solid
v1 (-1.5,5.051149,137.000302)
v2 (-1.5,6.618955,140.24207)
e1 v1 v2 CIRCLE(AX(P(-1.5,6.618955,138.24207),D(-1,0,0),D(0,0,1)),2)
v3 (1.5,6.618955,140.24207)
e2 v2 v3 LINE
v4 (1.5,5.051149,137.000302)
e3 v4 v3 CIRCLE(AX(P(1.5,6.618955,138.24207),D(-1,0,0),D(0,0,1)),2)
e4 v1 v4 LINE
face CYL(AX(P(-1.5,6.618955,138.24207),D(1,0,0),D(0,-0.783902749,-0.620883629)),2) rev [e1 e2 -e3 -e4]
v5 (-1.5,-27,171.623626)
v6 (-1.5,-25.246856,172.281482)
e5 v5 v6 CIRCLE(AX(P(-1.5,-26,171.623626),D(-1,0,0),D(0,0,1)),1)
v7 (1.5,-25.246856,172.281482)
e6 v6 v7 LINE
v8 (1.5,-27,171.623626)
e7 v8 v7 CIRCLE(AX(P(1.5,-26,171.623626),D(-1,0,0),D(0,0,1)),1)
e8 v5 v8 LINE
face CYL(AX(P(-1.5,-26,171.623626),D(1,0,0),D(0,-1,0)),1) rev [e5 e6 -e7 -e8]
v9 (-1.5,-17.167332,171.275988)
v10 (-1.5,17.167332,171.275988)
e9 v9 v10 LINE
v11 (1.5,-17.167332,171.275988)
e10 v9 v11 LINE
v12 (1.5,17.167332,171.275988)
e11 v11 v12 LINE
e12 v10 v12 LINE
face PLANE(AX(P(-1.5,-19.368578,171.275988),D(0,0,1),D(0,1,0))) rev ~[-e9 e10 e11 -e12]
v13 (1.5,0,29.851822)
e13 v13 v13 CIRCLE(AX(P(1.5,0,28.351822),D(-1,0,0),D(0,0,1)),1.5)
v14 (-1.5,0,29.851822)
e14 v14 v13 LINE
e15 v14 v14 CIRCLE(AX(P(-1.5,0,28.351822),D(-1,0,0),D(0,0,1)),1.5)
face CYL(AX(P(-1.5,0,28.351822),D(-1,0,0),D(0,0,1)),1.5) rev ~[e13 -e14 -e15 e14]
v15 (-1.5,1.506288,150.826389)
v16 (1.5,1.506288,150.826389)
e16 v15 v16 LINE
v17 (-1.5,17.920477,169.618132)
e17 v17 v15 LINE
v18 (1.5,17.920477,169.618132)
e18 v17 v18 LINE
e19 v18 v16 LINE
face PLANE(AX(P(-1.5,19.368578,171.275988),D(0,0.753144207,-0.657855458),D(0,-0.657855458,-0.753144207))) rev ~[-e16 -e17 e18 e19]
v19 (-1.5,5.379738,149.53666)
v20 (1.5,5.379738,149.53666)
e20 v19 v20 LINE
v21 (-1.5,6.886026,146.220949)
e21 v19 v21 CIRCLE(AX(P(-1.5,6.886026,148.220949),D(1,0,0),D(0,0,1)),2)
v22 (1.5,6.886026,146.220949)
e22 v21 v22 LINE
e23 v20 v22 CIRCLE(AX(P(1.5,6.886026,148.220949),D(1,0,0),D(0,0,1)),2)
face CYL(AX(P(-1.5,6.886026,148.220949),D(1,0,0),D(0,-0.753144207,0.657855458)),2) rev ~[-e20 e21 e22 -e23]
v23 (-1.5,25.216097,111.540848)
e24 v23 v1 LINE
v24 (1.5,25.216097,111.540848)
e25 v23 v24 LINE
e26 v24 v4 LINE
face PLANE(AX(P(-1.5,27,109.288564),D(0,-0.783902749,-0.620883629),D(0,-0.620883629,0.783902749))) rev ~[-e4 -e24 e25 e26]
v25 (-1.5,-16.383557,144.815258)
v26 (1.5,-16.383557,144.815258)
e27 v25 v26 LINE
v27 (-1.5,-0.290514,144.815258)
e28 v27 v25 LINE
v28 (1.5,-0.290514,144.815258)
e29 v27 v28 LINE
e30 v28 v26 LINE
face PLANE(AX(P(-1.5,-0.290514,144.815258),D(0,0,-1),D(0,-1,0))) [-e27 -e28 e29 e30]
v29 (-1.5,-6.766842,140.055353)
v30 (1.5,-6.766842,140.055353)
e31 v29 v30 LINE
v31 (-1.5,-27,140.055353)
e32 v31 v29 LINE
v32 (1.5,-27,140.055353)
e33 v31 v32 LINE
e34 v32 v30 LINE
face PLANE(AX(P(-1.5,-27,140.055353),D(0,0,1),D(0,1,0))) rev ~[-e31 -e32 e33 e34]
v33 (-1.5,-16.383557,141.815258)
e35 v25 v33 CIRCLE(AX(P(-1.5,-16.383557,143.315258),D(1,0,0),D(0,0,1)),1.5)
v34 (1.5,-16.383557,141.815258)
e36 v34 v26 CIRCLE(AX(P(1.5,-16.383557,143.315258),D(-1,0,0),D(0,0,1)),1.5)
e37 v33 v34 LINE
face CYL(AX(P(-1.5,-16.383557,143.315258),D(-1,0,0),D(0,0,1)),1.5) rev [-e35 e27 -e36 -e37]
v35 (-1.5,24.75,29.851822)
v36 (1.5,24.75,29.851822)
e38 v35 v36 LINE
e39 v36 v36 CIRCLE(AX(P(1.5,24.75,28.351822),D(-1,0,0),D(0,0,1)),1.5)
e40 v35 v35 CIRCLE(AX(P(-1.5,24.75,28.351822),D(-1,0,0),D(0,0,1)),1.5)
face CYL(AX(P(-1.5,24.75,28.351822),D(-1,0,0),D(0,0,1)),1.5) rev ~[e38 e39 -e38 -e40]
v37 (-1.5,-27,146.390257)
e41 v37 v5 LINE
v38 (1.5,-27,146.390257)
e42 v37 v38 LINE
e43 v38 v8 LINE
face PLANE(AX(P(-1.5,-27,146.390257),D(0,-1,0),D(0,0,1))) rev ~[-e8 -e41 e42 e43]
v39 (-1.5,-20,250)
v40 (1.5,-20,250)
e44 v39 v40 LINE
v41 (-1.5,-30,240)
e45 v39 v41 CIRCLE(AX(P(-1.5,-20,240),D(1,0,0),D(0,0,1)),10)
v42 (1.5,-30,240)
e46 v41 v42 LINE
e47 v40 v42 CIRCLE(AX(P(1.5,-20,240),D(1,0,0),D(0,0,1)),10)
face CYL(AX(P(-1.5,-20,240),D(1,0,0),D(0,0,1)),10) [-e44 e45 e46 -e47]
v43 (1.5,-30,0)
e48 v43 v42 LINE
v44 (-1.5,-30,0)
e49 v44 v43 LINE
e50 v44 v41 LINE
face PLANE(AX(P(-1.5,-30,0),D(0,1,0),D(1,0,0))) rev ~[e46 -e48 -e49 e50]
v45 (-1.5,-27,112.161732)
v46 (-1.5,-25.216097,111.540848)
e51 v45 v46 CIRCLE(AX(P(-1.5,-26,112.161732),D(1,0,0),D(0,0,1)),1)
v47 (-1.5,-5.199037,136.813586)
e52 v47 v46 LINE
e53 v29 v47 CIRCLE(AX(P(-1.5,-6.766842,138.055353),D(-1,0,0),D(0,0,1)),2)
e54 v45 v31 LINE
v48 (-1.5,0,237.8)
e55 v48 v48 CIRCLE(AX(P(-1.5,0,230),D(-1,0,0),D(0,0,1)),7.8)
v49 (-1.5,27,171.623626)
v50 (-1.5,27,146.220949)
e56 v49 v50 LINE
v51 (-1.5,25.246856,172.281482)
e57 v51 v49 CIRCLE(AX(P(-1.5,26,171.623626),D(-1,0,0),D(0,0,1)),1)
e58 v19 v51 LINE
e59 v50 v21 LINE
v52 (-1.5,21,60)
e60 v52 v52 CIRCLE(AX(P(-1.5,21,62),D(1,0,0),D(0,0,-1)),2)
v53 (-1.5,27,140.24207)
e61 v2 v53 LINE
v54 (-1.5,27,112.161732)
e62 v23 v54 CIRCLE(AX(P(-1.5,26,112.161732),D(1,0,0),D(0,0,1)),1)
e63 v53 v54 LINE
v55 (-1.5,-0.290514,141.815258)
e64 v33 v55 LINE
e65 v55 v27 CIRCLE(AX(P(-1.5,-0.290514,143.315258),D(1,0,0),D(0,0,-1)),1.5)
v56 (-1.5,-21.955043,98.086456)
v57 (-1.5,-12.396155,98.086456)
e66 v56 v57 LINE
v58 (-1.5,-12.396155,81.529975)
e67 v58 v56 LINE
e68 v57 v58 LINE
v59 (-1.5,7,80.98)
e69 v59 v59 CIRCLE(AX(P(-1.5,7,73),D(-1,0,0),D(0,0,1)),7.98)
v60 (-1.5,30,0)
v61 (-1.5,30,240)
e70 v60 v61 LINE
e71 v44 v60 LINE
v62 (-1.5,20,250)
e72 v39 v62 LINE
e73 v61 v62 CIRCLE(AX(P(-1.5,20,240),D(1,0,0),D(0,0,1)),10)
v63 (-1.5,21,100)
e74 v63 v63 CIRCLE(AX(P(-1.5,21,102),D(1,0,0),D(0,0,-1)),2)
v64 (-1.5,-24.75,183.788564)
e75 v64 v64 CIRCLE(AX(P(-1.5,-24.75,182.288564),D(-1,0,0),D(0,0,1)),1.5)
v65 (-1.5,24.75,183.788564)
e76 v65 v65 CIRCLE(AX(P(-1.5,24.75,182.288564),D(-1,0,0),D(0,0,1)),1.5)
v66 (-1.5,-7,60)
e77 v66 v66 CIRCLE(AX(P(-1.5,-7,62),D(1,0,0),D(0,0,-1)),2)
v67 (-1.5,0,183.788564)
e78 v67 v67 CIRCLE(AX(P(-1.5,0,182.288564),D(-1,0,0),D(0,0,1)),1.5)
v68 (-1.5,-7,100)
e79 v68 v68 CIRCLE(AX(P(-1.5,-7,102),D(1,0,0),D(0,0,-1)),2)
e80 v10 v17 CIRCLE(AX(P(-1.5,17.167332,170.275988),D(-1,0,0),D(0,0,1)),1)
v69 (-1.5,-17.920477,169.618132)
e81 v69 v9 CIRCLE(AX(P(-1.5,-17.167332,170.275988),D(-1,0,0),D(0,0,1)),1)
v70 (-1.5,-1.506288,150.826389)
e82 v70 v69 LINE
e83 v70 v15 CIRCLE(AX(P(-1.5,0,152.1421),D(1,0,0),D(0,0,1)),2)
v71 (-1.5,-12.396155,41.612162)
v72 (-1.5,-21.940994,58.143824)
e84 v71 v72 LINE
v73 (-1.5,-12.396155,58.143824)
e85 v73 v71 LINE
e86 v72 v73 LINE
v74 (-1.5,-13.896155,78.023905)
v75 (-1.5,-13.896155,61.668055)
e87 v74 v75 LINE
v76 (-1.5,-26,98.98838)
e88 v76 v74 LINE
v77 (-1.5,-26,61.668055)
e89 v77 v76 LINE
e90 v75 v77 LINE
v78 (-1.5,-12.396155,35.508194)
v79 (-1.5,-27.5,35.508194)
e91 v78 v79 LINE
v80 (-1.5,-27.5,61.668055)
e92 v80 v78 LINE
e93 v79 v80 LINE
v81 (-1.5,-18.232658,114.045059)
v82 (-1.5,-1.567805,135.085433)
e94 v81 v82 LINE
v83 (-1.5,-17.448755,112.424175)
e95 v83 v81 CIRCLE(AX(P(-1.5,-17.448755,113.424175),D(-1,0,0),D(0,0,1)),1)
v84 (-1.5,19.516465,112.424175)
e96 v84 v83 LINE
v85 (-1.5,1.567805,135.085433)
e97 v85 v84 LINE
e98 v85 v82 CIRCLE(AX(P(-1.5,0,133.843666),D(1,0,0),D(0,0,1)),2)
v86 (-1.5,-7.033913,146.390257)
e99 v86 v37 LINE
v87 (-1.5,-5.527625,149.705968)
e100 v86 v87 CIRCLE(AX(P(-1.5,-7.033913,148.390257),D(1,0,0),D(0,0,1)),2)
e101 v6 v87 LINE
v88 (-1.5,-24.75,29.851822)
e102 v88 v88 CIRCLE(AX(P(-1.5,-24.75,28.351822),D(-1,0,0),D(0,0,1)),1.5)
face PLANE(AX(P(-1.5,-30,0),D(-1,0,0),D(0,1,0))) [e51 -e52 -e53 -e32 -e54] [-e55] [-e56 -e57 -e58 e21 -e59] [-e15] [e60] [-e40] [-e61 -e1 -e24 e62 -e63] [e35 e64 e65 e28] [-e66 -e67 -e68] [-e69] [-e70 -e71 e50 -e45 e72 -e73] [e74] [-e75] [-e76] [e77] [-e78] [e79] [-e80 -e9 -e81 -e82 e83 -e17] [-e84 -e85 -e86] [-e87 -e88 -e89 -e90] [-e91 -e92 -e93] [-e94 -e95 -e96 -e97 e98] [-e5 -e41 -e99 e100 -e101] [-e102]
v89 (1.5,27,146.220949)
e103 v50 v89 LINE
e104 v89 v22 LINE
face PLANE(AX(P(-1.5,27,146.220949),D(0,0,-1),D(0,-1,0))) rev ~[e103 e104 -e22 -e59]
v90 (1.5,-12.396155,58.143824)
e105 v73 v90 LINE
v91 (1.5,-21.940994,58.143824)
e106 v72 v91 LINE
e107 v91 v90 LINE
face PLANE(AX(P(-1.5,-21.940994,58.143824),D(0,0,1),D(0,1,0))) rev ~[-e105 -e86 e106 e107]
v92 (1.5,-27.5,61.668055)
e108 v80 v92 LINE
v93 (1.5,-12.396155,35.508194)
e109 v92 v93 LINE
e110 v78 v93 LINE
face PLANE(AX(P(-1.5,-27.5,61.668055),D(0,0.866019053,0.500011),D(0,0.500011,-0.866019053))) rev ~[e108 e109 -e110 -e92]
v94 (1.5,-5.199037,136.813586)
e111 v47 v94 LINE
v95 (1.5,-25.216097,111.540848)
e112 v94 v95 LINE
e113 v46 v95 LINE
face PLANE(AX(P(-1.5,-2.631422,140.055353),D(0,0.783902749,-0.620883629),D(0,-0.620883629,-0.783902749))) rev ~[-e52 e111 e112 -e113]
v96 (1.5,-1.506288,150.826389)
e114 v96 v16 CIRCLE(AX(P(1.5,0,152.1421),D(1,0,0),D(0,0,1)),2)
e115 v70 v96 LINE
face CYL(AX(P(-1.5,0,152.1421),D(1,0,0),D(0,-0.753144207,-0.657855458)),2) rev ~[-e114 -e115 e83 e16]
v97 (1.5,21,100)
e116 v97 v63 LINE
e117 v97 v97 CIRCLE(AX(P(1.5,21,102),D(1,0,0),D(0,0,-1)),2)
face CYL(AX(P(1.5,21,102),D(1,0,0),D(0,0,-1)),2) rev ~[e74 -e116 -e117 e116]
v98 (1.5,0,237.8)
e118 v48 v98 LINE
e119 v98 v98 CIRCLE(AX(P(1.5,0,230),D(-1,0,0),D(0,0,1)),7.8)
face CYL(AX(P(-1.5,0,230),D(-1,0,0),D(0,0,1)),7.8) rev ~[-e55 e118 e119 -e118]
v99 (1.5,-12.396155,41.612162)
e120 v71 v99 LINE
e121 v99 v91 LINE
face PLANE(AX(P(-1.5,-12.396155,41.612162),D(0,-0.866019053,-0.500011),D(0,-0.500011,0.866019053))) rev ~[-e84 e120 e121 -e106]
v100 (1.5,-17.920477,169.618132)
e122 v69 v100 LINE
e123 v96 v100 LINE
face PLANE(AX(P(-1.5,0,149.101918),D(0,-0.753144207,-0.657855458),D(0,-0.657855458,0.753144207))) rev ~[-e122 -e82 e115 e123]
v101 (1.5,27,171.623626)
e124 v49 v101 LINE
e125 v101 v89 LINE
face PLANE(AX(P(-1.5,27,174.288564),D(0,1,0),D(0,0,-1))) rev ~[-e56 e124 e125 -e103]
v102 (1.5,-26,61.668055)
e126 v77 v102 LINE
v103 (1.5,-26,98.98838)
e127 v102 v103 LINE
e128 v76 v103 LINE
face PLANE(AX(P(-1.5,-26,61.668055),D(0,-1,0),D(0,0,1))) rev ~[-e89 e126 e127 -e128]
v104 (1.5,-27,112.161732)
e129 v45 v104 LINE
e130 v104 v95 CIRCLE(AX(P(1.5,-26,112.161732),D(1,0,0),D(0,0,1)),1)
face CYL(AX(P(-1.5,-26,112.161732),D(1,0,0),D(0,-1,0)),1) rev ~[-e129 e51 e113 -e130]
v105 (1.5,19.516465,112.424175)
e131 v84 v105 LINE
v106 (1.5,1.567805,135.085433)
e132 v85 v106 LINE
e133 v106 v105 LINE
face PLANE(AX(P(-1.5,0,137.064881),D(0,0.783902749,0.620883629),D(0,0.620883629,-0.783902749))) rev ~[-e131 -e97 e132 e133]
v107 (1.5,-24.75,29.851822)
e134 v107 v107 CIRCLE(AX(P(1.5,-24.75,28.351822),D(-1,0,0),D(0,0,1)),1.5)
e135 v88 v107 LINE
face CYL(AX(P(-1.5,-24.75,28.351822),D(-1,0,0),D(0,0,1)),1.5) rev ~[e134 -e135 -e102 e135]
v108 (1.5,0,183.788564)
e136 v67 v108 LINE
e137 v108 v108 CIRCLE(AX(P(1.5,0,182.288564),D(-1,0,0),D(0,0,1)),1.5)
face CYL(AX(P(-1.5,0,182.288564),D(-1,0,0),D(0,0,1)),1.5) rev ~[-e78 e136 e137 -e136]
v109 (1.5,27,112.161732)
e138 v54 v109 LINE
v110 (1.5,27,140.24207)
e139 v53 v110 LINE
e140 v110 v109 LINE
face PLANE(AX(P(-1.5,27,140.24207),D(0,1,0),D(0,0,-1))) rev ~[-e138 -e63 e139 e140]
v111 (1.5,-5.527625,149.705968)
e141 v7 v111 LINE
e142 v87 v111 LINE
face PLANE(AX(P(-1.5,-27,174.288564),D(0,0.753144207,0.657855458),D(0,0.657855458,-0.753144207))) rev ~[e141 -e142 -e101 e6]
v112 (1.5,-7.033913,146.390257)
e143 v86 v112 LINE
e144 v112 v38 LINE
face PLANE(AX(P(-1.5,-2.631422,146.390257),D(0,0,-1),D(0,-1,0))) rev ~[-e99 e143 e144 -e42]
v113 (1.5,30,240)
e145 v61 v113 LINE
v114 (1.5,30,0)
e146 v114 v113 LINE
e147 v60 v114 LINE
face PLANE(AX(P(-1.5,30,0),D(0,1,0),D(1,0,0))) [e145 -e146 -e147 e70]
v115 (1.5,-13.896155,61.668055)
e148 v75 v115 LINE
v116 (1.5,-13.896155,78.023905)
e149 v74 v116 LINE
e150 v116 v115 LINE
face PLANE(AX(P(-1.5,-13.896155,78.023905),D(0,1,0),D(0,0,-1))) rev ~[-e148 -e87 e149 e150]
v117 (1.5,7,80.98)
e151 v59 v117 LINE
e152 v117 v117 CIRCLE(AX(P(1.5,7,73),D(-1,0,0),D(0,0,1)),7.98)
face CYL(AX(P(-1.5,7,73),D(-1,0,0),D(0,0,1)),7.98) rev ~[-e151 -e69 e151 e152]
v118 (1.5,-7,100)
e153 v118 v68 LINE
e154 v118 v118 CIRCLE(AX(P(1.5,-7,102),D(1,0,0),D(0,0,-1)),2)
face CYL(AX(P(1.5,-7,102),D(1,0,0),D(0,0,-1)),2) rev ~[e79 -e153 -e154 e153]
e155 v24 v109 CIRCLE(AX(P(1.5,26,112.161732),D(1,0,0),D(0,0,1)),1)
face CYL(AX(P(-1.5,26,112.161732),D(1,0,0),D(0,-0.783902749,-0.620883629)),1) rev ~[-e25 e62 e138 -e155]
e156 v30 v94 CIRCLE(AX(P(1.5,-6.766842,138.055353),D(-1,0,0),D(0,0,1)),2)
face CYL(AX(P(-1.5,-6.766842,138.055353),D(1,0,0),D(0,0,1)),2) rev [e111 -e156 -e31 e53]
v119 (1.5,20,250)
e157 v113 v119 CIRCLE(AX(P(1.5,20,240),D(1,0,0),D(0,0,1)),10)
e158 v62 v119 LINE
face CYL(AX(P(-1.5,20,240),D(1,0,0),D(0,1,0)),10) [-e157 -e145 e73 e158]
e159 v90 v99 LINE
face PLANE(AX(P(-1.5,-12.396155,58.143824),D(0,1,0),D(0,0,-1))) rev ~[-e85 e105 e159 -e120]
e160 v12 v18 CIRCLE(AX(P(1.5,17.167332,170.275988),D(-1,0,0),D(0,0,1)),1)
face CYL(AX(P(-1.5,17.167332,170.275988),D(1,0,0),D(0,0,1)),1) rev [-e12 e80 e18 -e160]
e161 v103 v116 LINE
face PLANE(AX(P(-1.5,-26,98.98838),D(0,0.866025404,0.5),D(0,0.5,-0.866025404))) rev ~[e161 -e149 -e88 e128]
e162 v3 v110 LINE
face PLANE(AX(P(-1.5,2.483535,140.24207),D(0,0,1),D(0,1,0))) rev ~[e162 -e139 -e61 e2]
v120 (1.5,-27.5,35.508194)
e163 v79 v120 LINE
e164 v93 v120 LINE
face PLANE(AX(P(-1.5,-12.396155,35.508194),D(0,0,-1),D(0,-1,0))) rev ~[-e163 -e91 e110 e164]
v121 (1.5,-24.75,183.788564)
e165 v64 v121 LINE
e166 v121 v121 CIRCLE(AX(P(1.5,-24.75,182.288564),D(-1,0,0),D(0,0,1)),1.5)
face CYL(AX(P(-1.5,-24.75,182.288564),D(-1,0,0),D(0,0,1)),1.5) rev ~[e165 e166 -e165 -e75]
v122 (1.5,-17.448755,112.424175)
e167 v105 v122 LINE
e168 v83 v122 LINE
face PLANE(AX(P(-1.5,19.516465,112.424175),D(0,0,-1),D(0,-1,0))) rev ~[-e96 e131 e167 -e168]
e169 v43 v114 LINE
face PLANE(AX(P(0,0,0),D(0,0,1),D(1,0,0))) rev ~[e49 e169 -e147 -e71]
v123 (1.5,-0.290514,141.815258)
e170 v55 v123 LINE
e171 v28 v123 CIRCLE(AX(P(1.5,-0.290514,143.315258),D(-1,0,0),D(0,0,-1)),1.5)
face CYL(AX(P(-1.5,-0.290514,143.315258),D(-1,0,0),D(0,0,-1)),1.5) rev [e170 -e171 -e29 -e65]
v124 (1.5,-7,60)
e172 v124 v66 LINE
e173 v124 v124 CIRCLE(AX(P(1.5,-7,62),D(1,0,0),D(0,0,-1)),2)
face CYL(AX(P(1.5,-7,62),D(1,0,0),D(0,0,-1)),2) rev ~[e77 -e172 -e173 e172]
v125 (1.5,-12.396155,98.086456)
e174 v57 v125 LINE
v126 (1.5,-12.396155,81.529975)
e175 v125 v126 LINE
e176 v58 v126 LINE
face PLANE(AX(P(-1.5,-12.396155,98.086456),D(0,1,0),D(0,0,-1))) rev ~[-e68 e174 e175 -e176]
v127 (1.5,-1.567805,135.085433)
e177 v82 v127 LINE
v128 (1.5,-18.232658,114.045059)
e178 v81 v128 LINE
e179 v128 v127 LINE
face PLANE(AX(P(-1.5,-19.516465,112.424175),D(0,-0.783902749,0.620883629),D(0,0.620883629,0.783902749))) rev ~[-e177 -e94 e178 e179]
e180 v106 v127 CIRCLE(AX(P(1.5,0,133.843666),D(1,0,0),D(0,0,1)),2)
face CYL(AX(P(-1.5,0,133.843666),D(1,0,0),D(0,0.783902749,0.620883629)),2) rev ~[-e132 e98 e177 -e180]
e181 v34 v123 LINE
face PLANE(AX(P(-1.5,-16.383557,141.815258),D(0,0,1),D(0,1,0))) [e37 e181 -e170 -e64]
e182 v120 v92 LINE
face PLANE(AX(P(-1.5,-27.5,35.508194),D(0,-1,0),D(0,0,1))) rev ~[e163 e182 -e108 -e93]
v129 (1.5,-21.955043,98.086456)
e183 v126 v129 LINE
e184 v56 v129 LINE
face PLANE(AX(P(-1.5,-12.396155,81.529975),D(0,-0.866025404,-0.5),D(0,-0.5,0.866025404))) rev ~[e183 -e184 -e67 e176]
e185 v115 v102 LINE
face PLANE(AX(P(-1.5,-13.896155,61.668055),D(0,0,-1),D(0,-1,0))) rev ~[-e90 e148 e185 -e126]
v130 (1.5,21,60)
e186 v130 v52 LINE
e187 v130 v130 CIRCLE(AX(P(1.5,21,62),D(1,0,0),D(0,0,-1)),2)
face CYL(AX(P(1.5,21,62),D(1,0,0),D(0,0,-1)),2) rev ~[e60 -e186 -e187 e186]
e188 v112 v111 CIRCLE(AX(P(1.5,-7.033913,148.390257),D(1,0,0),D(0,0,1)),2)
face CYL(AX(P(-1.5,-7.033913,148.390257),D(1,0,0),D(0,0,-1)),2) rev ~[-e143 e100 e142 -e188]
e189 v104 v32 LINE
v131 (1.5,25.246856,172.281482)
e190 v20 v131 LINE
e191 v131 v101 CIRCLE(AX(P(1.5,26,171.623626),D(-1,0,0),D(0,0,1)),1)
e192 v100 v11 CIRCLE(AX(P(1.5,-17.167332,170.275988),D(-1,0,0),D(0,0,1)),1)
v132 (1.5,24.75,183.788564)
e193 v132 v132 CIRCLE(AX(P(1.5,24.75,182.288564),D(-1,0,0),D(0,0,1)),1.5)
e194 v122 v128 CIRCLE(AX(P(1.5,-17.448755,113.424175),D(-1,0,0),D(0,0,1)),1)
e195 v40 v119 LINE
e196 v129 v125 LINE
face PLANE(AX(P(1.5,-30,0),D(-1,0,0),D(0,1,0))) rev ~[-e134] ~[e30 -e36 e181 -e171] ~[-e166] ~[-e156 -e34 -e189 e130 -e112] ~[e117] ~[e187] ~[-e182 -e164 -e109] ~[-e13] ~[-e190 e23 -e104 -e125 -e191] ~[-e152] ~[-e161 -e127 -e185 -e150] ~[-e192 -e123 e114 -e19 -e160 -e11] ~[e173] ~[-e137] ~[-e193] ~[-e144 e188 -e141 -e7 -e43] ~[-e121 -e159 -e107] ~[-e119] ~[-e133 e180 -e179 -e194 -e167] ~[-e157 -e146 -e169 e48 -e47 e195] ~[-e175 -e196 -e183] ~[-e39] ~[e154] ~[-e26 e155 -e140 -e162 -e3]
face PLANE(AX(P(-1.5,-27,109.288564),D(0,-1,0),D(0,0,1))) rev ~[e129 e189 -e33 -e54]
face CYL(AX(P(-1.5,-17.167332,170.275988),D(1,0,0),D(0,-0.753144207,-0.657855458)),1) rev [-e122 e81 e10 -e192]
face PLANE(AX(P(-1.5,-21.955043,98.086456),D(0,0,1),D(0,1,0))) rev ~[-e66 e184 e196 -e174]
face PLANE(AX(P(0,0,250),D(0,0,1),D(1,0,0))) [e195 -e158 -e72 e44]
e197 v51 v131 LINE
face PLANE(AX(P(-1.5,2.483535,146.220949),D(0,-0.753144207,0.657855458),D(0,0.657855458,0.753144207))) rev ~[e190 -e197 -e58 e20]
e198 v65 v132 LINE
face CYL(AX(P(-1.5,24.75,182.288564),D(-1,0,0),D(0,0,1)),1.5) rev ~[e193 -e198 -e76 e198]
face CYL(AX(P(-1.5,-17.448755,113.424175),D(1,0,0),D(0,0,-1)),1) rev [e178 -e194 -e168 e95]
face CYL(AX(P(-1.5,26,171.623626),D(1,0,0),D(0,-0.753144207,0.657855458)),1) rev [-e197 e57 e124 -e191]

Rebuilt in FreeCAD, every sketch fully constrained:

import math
import FreeCAD as App
import Part
import Sketcher
Q = App.Units.Quantity


def edges_at(feature, points):
    """Names of the edges that pass closest to the given points."""
    edges = feature.Shape.Edges
    near = lambda p: min(range(len(edges)), key=lambda i: edges[i].distToShape(Part.Vertex(*p))[0])
    return sorted({f"Edge{near(p) + 1}" for p in points})

doc = App.newDocument("Part")
params = doc.addObject("Spreadsheet::Sheet", "Params")
for row, (alias, value) in enumerate([
    ("sketch1_width", "3 mm"),
    ("sketch1_height", "60 mm"),
    ("pad1_length", "250 mm"),
    ("fillet_radius", "10 mm"),
    ("fillet2_radius", "10 mm"),
    ("sketch2_diameter", "8.5 mm"),
    ("sketch3_diameter", "15.6 mm"),
    ("sketch4_diameter", "15.96 mm"),
    ("sketch5_diameter", "4 mm"),
    ("pocket5_length", "10 mm"),
    ("fillet3_radius", "1 mm"),
    ("fillet4_radius", "2 mm"),
    ("pocket6_length", "10 mm"),
    ("sketch8_radius", "1.5 mm"),
    ("sketch9_diameter", "3 mm"),
], start=1):
    params.set(f"A{row}", alias)
    params.set(f"B{row}", "=" + value)
    params.setAlias(f"B{row}", alias)

body = doc.addObject("PartDesign::Body", "Body")

# Sketch on XY plane
sketch1 = body.newObject("Sketcher::SketchObject", "Sketch")
sketch1.AttachmentSupport = (doc.getObject("XY_Plane"), [""])
sketch1.MapMode = "FlatFace"
sketch1.addGeometry(Part.LineSegment(App.Vector(-1.5, 30, 0), App.Vector(-1.5, -30, 0)), False)
sketch1.addGeometry(Part.LineSegment(App.Vector(-1.5, -30, 0), App.Vector(1.5, -30, 0)), False)
sketch1.addGeometry(Part.LineSegment(App.Vector(1.5, -30, 0), App.Vector(1.5, 30, 0)), False)
sketch1.addGeometry(Part.LineSegment(App.Vector(1.5, 30, 0), App.Vector(-1.5, 30, 0)), False)
sketch1.addConstraint(Sketcher.Constraint("Coincident", 0, 2, 1, 1))
sketch1.addConstraint(Sketcher.Constraint("Coincident", 1, 2, 2, 1))
sketch1.addConstraint(Sketcher.Constraint("Coincident", 2, 2, 3, 1))
sketch1.addConstraint(Sketcher.Constraint("Coincident", 3, 2, 0, 1))
sketch1.addConstraint(Sketcher.Constraint("Vertical", 0))
sketch1.addConstraint(Sketcher.Constraint("Horizontal", 1))
sketch1.addConstraint(Sketcher.Constraint("Vertical", 2))
sketch1.addConstraint(Sketcher.Constraint("Horizontal", 3))
sketch1.addConstraint(Sketcher.Constraint("Symmetric", 0, 2, 2, 2, -1, 1))
sketch1.addConstraint(Sketcher.Constraint("DistanceX", 1, 1, 1, 2, Q("3 mm")))
sketch1.addConstraint(Sketcher.Constraint("DistanceY", 0, 2, 0, 1, Q("60 mm")))
sketch1.setExpression("Constraints[9]", "Params.sketch1_width")
sketch1.setExpression("Constraints[10]", "Params.sketch1_height")
pad1 = body.newObject("PartDesign::Pad", "Pad")
pad1.Profile = sketch1
pad1.setExpression("Length", "Params.pad1_length")
doc.recompute()

fillet = body.newObject("PartDesign::Fillet", "Fillet")
fillet.Base = (pad1, edges_at(pad1, [(0, 30, 250)]))
fillet.setExpression("Radius", "Params.fillet_radius")
doc.recompute()

fillet2 = body.newObject("PartDesign::Fillet", "Fillet001")
fillet2.Base = (fillet, edges_at(fillet, [(0, -30, 250)]))
fillet2.setExpression("Radius", "Params.fillet2_radius")

# Sketch on YZ plane
sketch2 = body.newObject("Sketcher::SketchObject", "Sketch001")
sketch2.AttachmentSupport = (doc.getObject("YZ_Plane"), [""])
sketch2.MapMode = "FlatFace"
sketch2.AttachmentOffset = App.Placement(App.Vector(0, 0, -1.5), App.Rotation())
sketch2.addGeometry(Part.Circle(App.Vector(0, 230, 0), App.Vector(0, 0, 1), 4.25), False)
sketch2.addConstraint(Sketcher.Constraint("PointOnObject", 0, 3, -2))
sketch2.addConstraint(Sketcher.Constraint("Diameter", 0, Q("8.5 mm")))
sketch2.addConstraint(Sketcher.Constraint("DistanceY", -1, 1, 0, 3, Q("230 mm")))
sketch2.setExpression("Constraints[1]", "Params.sketch2_diameter")
pocket1 = body.newObject("PartDesign::Pocket", "Pocket")
pocket1.Profile = sketch2
pocket1.Type = "ThroughAll"
pocket1.Reversed = True

# Sketch on YZ plane
sketch3 = body.newObject("Sketcher::SketchObject", "Sketch002")
sketch3.AttachmentSupport = (doc.getObject("YZ_Plane"), [""])
sketch3.MapMode = "FlatFace"
sketch3.AttachmentOffset = App.Placement(App.Vector(0, 0, -1.5), App.Rotation())
sketch3.addGeometry(Part.Circle(App.Vector(0, 230, 0), App.Vector(0, 0, 1), 7.8), False)
sketch3.addConstraint(Sketcher.Constraint("PointOnObject", 0, 3, -2))
sketch3.addConstraint(Sketcher.Constraint("Diameter", 0, Q("15.6 mm")))
sketch3.addConstraint(Sketcher.Constraint("DistanceY", -1, 1, 0, 3, Q("230 mm")))
sketch3.setExpression("Constraints[1]", "Params.sketch3_diameter")
pocket2 = body.newObject("PartDesign::Pocket", "Pocket001")
pocket2.Profile = sketch3
pocket2.Type = "ThroughAll"
pocket2.Reversed = True

# Sketch on YZ plane
sketch4 = body.newObject("Sketcher::SketchObject", "Sketch003")
sketch4.AttachmentSupport = (doc.getObject("YZ_Plane"), [""])
sketch4.MapMode = "FlatFace"
sketch4.AttachmentOffset = App.Placement(App.Vector(0, 0, -1.5), App.Rotation())
sketch4.addGeometry(Part.Circle(App.Vector(7, 73, 0), App.Vector(0, 0, 1), 7.98), False)
sketch4.addConstraint(Sketcher.Constraint("Diameter", 0, Q("15.96 mm")))
sketch4.addConstraint(Sketcher.Constraint("DistanceX", -1, 1, 0, 3, Q("7 mm")))
sketch4.addConstraint(Sketcher.Constraint("DistanceY", -1, 1, 0, 3, Q("73 mm")))
sketch4.setExpression("Constraints[0]", "Params.sketch4_diameter")
pocket3 = body.newObject("PartDesign::Pocket", "Pocket002")
pocket3.Profile = sketch4
pocket3.Type = "ThroughAll"
pocket3.Reversed = True

# Sketch on YZ plane
sketch5 = body.newObject("Sketcher::SketchObject", "Sketch004")
sketch5.AttachmentSupport = (doc.getObject("YZ_Plane"), [""])
sketch5.MapMode = "FlatFace"
sketch5.AttachmentOffset = App.Placement(App.Vector(0, 0, 1.5), App.Rotation())
sketch5.addGeometry(Part.Circle(App.Vector(-7, 102, 0), App.Vector(0, 0, 1), 2), False)
sketch5.addGeometry(Part.Circle(App.Vector(21, 102, 0), App.Vector(0, 0, 1), 2), False)
sketch5.addGeometry(Part.Circle(App.Vector(21, 62, 0), App.Vector(0, 0, 1), 2), False)
sketch5.addGeometry(Part.Circle(App.Vector(-7, 62, 0), App.Vector(0, 0, 1), 2), False)
sketch5.addConstraint(Sketcher.Constraint("Equal", 0, 1))
sketch5.addConstraint(Sketcher.Constraint("Equal", 1, 2))
sketch5.addConstraint(Sketcher.Constraint("Equal", 2, 3))
sketch5.addConstraint(Sketcher.Constraint("Horizontal", 0, 3, 1, 3))
sketch5.addConstraint(Sketcher.Constraint("Horizontal", 2, 3, 3, 3))
sketch5.addConstraint(Sketcher.Constraint("Vertical", 1, 3, 2, 3))
sketch5.addConstraint(Sketcher.Constraint("Vertical", 0, 3, 3, 3))
sketch5.addConstraint(Sketcher.Constraint("Diameter", 0, Q("4 mm")))
sketch5.addConstraint(Sketcher.Constraint("DistanceX", 0, 3, -1, 1, Q("7 mm")))
sketch5.addConstraint(Sketcher.Constraint("DistanceY", -1, 1, 0, 3, Q("102 mm")))
sketch5.addConstraint(Sketcher.Constraint("DistanceX", -1, 1, 1, 3, Q("21 mm")))
sketch5.addConstraint(Sketcher.Constraint("DistanceY", -1, 1, 2, 3, Q("62 mm")))
sketch5.setExpression("Constraints[7]", "Params.sketch5_diameter")
pocket4 = body.newObject("PartDesign::Pocket", "Pocket003")
pocket4.Profile = sketch5
pocket4.Type = "ThroughAll"

# Sketch on YZ plane
sketch6 = body.newObject("Sketcher::SketchObject", "Sketch005")
sketch6.AttachmentSupport = (doc.getObject("YZ_Plane"), [""])
sketch6.MapMode = "FlatFace"
sketch6.AttachmentOffset = App.Placement(App.Vector(0, 0, -1.5), App.Rotation())
sketch6.addGeometry(Part.LineSegment(App.Vector(0, 149.101918, 0), App.Vector(-19.368578, 171.275988, 0)), False)
sketch6.addGeometry(Part.LineSegment(App.Vector(-19.368578, 171.275988, 0), App.Vector(19.368578, 171.275988, 0)), False)
sketch6.addGeometry(Part.LineSegment(App.Vector(19.368578, 171.275988, 0), App.Vector(0, 149.101918, 0)), False)
sketch6.addGeometry(Part.LineSegment(App.Vector(-27, 146.390257, 0), App.Vector(-27, 174.288564, 0)), False)
sketch6.addGeometry(Part.LineSegment(App.Vector(-27, 174.288564, 0), App.Vector(-2.631422, 146.390257, 0)), False)
sketch6.addGeometry(Part.LineSegment(App.Vector(-2.631422, 146.390257, 0), App.Vector(-27, 146.390257, 0)), False)
sketch6.addGeometry(Part.LineSegment(App.Vector(-27, 109.288564, 0), App.Vector(-27, 140.055353, 0)), False)
sketch6.addGeometry(Part.LineSegment(App.Vector(-27, 140.055353, 0), App.Vector(-2.631422, 140.055353, 0)), False)
sketch6.addGeometry(Part.LineSegment(App.Vector(-2.631422, 140.055353, 0), App.Vector(-27, 109.288564, 0)), False)
sketch6.addGeometry(Part.LineSegment(App.Vector(19.516465, 112.424175, 0), App.Vector(-19.516465, 112.424175, 0)), False)
sketch6.addGeometry(Part.LineSegment(App.Vector(-19.516465, 112.424175, 0), App.Vector(0, 137.064881, 0)), False)
sketch6.addGeometry(Part.LineSegment(App.Vector(0, 137.064881, 0), App.Vector(19.516465, 112.424175, 0)), False)
sketch6.addGeometry(Part.LineSegment(App.Vector(27, 109.288564, 0), App.Vector(2.483535, 140.24207, 0)), False)
sketch6.addGeometry(Part.LineSegment(App.Vector(2.483535, 140.24207, 0), App.Vector(27, 140.24207, 0)), False)
sketch6.addGeometry(Part.LineSegment(App.Vector(27, 140.24207, 0), App.Vector(27, 109.288564, 0)), False)
sketch6.addGeometry(Part.LineSegment(App.Vector(2.483535, 146.220949, 0), App.Vector(27, 174.288564, 0)), False)
sketch6.addGeometry(Part.LineSegment(App.Vector(27, 174.288564, 0), App.Vector(27, 146.220949, 0)), False)
sketch6.addGeometry(Part.LineSegment(App.Vector(27, 146.220949, 0), App.Vector(2.483535, 146.220949, 0)), False)
sketch6.addConstraint(Sketcher.Constraint("Coincident", 0, 2, 1, 1))
sketch6.addConstraint(Sketcher.Constraint("Coincident", 1, 2, 2, 1))
sketch6.addConstraint(Sketcher.Constraint("Coincident", 2, 2, 0, 1))
sketch6.addConstraint(Sketcher.Constraint("Coincident", 3, 2, 4, 1))
sketch6.addConstraint(Sketcher.Constraint("Coincident", 4, 2, 5, 1))
sketch6.addConstraint(Sketcher.Constraint("Coincident", 5, 2, 3, 1))
sketch6.addConstraint(Sketcher.Constraint("Coincident", 6, 2, 7, 1))
sketch6.addConstraint(Sketcher.Constraint("Coincident", 7, 2, 8, 1))
sketch6.addConstraint(Sketcher.Constraint("Coincident", 8, 2, 6, 1))
sketch6.addConstraint(Sketcher.Constraint("Coincident", 9, 2, 10, 1))
sketch6.addConstraint(Sketcher.Constraint("Coincident", 10, 2, 11, 1))
sketch6.addConstraint(Sketcher.Constraint("Coincident", 11, 2, 9, 1))
sketch6.addConstraint(Sketcher.Constraint("Coincident", 12, 2, 13, 1))
sketch6.addConstraint(Sketcher.Constraint("Coincident", 13, 2, 14, 1))
sketch6.addConstraint(Sketcher.Constraint("Coincident", 14, 2, 12, 1))
sketch6.addConstraint(Sketcher.Constraint("Coincident", 15, 2, 16, 1))
sketch6.addConstraint(Sketcher.Constraint("Coincident", 16, 2, 17, 1))
sketch6.addConstraint(Sketcher.Constraint("Coincident", 17, 2, 15, 1))
sketch6.addConstraint(Sketcher.Constraint("Horizontal", 1))
sketch6.addConstraint(Sketcher.Constraint("Vertical", 3))
sketch6.addConstraint(Sketcher.Constraint("Horizontal", 5))
sketch6.addConstraint(Sketcher.Constraint("Vertical", 6))
sketch6.addConstraint(Sketcher.Constraint("Horizontal", 7))
sketch6.addConstraint(Sketcher.Constraint("Horizontal", 9))
sketch6.addConstraint(Sketcher.Constraint("Horizontal", 13))
sketch6.addConstraint(Sketcher.Constraint("Vertical", 14))
sketch6.addConstraint(Sketcher.Constraint("Vertical", 16))
sketch6.addConstraint(Sketcher.Constraint("Horizontal", 17))
sketch6.addConstraint(Sketcher.Constraint("Symmetric", 8, 2, 14, 2, -2))
sketch6.addConstraint(Sketcher.Constraint("Symmetric", 3, 2, 15, 2, -2))
sketch6.addConstraint(Sketcher.Constraint("PointOnObject", 2, 2, -2))
sketch6.addConstraint(Sketcher.Constraint("PointOnObject", 10, 2, -2))
sketch6.addConstraint(Sketcher.Constraint("Parallel", 0, 4))
sketch6.addConstraint(Sketcher.Constraint("Parallel", 8, 10))
sketch6.addConstraint(Sketcher.Constraint("Parallel", 11, 12))
sketch6.addConstraint(Sketcher.Constraint("Parallel", 2, 15))
sketch6.addConstraint(Sketcher.Constraint("Vertical", 5, 2, 6, 2))
sketch6.addConstraint(Sketcher.Constraint("Vertical", 4, 2, 7, 2))
sketch6.addConstraint(Sketcher.Constraint("Vertical", 12, 2, 17, 2))
sketch6.addConstraint(Sketcher.Constraint("Equal", 0, 2))
sketch6.addConstraint(Sketcher.Constraint("Equal", 10, 11))
sketch6.addConstraint(Sketcher.Constraint("DistanceX", 3, 2, -1, 1, Q("27 mm")))
sketch6.addConstraint(Sketcher.Constraint("DistanceX", 4, 2, 1, 2, Q("22 mm")))
sketch6.addConstraint(Sketcher.Constraint("DistanceX", 5, 2, 5, 1, Q("24.368578 mm")))
sketch6.addConstraint(Sketcher.Constraint("DistanceX", 9, 2, 9, 1, Q("39.032931 mm")))
sketch6.addConstraint(Sketcher.Constraint("DistanceY", 6, 1, 6, 2, Q("30.766789 mm")))
sketch6.addConstraint(Sketcher.Constraint("Distance", 4, Q("37.04245 mm")))
sketch6.addConstraint(Sketcher.Constraint("Distance", 12, Q("39.48641 mm")))
sketch6.addConstraint(Sketcher.Constraint("DistanceY", -1, 1, 2, 2, Q("149.101918 mm")))
sketch6.addConstraint(Sketcher.Constraint("DistanceY", -1, 1, 10, 2, Q("137.064881 mm")))
sketch6.addConstraint(Sketcher.Constraint("DistanceY", -1, 1, 12, 2, Q("140.24207 mm")))
sketch6.addConstraint(Sketcher.Constraint("DistanceY", -1, 1, 16, 2, Q("146.220949 mm")))
pocket5 = body.newObject("PartDesign::Pocket", "Pocket004")
pocket5.Profile = sketch6
pocket5.setExpression("Length", "Params.pocket5_length")
pocket5.Reversed = True
doc.recompute()

fillet3 = body.newObject("PartDesign::Fillet", "Fillet002")
fillet3.Base = (pocket5, edges_at(pocket5, [
    (0, -27, 174.289),
    (0, 27, 174.289),
    (0, -19.369, 171.276),
    (0, 19.369, 171.276),
    (0, -19.516, 112.424),
    (0, 27, 109.289),
    (0, -27, 109.289),
]))
fillet3.setExpression("Radius", "Params.fillet3_radius")
doc.recompute()

fillet4 = body.newObject("PartDesign::Fillet", "Fillet003")
fillet4.Base = (fillet3, edges_at(fillet3, [
    (0, -2.631, 146.39),
    (0, 2.484, 146.221),
    (0, 0, 149.102),
    (0, 0, 137.065),
    (0, 2.484, 140.242),
    (0, -2.631, 140.055),
]))
fillet4.setExpression("Radius", "Params.fillet4_radius")

# Sketch on YZ plane
sketch7 = body.newObject("Sketcher::SketchObject", "Sketch006")
sketch7.AttachmentSupport = (doc.getObject("YZ_Plane"), [""])
sketch7.MapMode = "FlatFace"
sketch7.AttachmentOffset = App.Placement(App.Vector(0, 0, -1.5), App.Rotation())
sketch7.addGeometry(Part.LineSegment(App.Vector(-26, 61.668055, 0), App.Vector(-26, 98.98838, 0)), False)
sketch7.addGeometry(Part.LineSegment(App.Vector(-26, 98.98838, 0), App.Vector(-13.896155, 78.023905, 0)), False)
sketch7.addGeometry(Part.LineSegment(App.Vector(-13.896155, 78.023905, 0), App.Vector(-13.896155, 61.668055, 0)), False)
sketch7.addGeometry(Part.LineSegment(App.Vector(-13.896155, 61.668055, 0), App.Vector(-26, 61.668055, 0)), False)
sketch7.addGeometry(Part.LineSegment(App.Vector(-21.955043, 98.086456, 0), App.Vector(-12.396155, 98.086456, 0)), False)
sketch7.addGeometry(Part.LineSegment(App.Vector(-12.396155, 98.086456, 0), App.Vector(-12.396155, 81.529975, 0)), False)
sketch7.addGeometry(Part.LineSegment(App.Vector(-12.396155, 81.529975, 0), App.Vector(-21.955043, 98.086456, 0)), False)
sketch7.addGeometry(Part.LineSegment(App.Vector(-12.396155, 58.143824, 0), App.Vector(-12.396155, 41.612162, 0)), False)
sketch7.addGeometry(Part.LineSegment(App.Vector(-12.396155, 41.612162, 0), App.Vector(-21.940994, 58.143824, 0)), False)
sketch7.addGeometry(Part.LineSegment(App.Vector(-21.940994, 58.143824, 0), App.Vector(-12.396155, 58.143824, 0)), False)
sketch7.addGeometry(Part.LineSegment(App.Vector(-27.5, 35.508194, 0), App.Vector(-27.5, 61.668055, 0)), False)
sketch7.addGeometry(Part.LineSegment(App.Vector(-27.5, 61.668055, 0), App.Vector(-12.396155, 35.508194, 0)), False)
sketch7.addGeometry(Part.LineSegment(App.Vector(-12.396155, 35.508194, 0), App.Vector(-27.5, 35.508194, 0)), False)
sketch7.addConstraint(Sketcher.Constraint("Coincident", 0, 2, 1, 1))
sketch7.addConstraint(Sketcher.Constraint("Coincident", 1, 2, 2, 1))
sketch7.addConstraint(Sketcher.Constraint("Coincident", 2, 2, 3, 1))
sketch7.addConstraint(Sketcher.Constraint("Coincident", 3, 2, 0, 1))
sketch7.addConstraint(Sketcher.Constraint("Coincident", 4, 2, 5, 1))
sketch7.addConstraint(Sketcher.Constraint("Coincident", 5, 2, 6, 1))
sketch7.addConstraint(Sketcher.Constraint("Coincident", 6, 2, 4, 1))
sketch7.addConstraint(Sketcher.Constraint("Coincident", 7, 2, 8, 1))
sketch7.addConstraint(Sketcher.Constraint("Coincident", 8, 2, 9, 1))
sketch7.addConstraint(Sketcher.Constraint("Coincident", 9, 2, 7, 1))
sketch7.addConstraint(Sketcher.Constraint("Coincident", 10, 2, 11, 1))
sketch7.addConstraint(Sketcher.Constraint("Coincident", 11, 2, 12, 1))
sketch7.addConstraint(Sketcher.Constraint("Coincident", 12, 2, 10, 1))
sketch7.addConstraint(Sketcher.Constraint("Vertical", 0))
sketch7.addConstraint(Sketcher.Constraint("Vertical", 2))
sketch7.addConstraint(Sketcher.Constraint("Horizontal", 3))
sketch7.addConstraint(Sketcher.Constraint("Horizontal", 4))
sketch7.addConstraint(Sketcher.Constraint("Vertical", 5))
sketch7.addConstraint(Sketcher.Constraint("Vertical", 7))
sketch7.addConstraint(Sketcher.Constraint("Horizontal", 9))
sketch7.addConstraint(Sketcher.Constraint("Vertical", 10))
sketch7.addConstraint(Sketcher.Constraint("Horizontal", 12))
sketch7.addConstraint(Sketcher.Constraint("Parallel", 1, 6))
sketch7.addConstraint(Sketcher.Constraint("Parallel", 8, 11))
sketch7.addConstraint(Sketcher.Constraint("Horizontal", 3, 2, 10, 2))
sketch7.addConstraint(Sketcher.Constraint("Vertical", 5, 2, 7, 2))
sketch7.addConstraint(Sketcher.Constraint("Vertical", 9, 2, 11, 2))
sketch7.addConstraint(Sketcher.Constraint("Angle", 1, Q("-60 deg")))
sketch7.addConstraint(Sketcher.Constraint("DistanceX", 0, 2, -1, 1, Q("26 mm")))
sketch7.addConstraint(Sketcher.Constraint("DistanceX", 10, 2, -1, 1, Q("27.5 mm")))
sketch7.addConstraint(Sketcher.Constraint("DistanceX", 1, 2, 4, 2, Q("1.5 mm")))
sketch7.addConstraint(Sketcher.Constraint("DistanceX", 4, 1, 4, 2, Q("9.558889 mm")))
sketch7.addConstraint(Sketcher.Constraint("DistanceX", 9, 1, 9, 2, Q("9.54484 mm")))
sketch7.addConstraint(Sketcher.Constraint("DistanceY", 2, 2, 2, 1, Q("16.35585 mm")))
sketch7.addConstraint(Sketcher.Constraint("DistanceY", 10, 1, 10, 2, Q("26.15986 mm")))
sketch7.addConstraint(Sketcher.Constraint("DistanceY", 2, 2, 4, 2, Q("36.418402 mm")))
sketch7.addConstraint(Sketcher.Constraint("Distance", 1, Q("24.207691 mm")))
sketch7.addConstraint(Sketcher.Constraint("DistanceY", -1, 1, 0, 2, Q("98.98838 mm")))
sketch7.addConstraint(Sketcher.Constraint("DistanceY", -1, 1, 7, 2, Q("41.612162 mm")))
pocket6 = body.newObject("PartDesign::Pocket", "Pocket005")
pocket6.Profile = sketch7
pocket6.setExpression("Length", "Params.pocket6_length")
pocket6.Reversed = True

# Sketch on YZ plane
sketch8 = body.newObject("Sketcher::SketchObject", "Sketch007")
sketch8.AttachmentSupport = (doc.getObject("YZ_Plane"), [""])
sketch8.MapMode = "FlatFace"
sketch8.AttachmentOffset = App.Placement(App.Vector(0, 0, -1.5), App.Rotation())
sketch8.addGeometry(Part.LineSegment(App.Vector(-16.383557, 144.815258, 0), App.Vector(-0.290514, 144.815258, 0)), False)
sketch8.addGeometry(Part.ArcOfCircle(Part.Circle(App.Vector(-0.290514, 143.315258, 0), App.Vector(0, 0, 1), 1.5), math.radians(-90), math.radians(90)), False)
sketch8.addGeometry(Part.LineSegment(App.Vector(-0.290514, 141.815258, 0), App.Vector(-16.383557, 141.815258, 0)), False)
sketch8.addGeometry(Part.ArcOfCircle(Part.Circle(App.Vector(-16.383557, 143.315258, 0), App.Vector(0, 0, 1), 1.5), math.radians(90), math.radians(270)), False)
sketch8.addConstraint(Sketcher.Constraint("Tangent", 0, 2, 1, 2))
sketch8.addConstraint(Sketcher.Constraint("Tangent", 1, 1, 2, 1))
sketch8.addConstraint(Sketcher.Constraint("Tangent", 2, 2, 3, 2))
sketch8.addConstraint(Sketcher.Constraint("Tangent", 3, 1, 0, 1))
sketch8.addConstraint(Sketcher.Constraint("Horizontal", 0))
sketch8.addConstraint(Sketcher.Constraint("Horizontal", 2))
sketch8.addConstraint(Sketcher.Constraint("Radius", 1, Q("1.5 mm")))
sketch8.addConstraint(Sketcher.Constraint("DistanceX", 0, 1, 0, 2, Q("16.093044 mm")))
sketch8.addConstraint(Sketcher.Constraint("DistanceX", 1, 3, -1, 1, Q("0.290514 mm")))
sketch8.addConstraint(Sketcher.Constraint("DistanceY", -1, 1, 1, 3, Q("143.315258 mm")))
sketch8.setExpression("Constraints[6]", "Params.sketch8_radius")
pocket7 = body.newObject("PartDesign::Pocket", "Pocket006")
pocket7.Profile = sketch8
pocket7.Type = "ThroughAll"
pocket7.Reversed = True

# Sketch on YZ plane
sketch9 = body.newObject("Sketcher::SketchObject", "Sketch008")
sketch9.AttachmentSupport = (doc.getObject("YZ_Plane"), [""])
sketch9.MapMode = "FlatFace"
sketch9.AttachmentOffset = App.Placement(App.Vector(0, 0, -1.5), App.Rotation())
sketch9.addGeometry(Part.Circle(App.Vector(-24.75, 28.351822, 0), App.Vector(0, 0, 1), 1.5), False)
sketch9.addGeometry(Part.Circle(App.Vector(0, 28.351822, 0), App.Vector(0, 0, 1), 1.5), False)
sketch9.addGeometry(Part.Circle(App.Vector(24.75, 28.351822, 0), App.Vector(0, 0, 1), 1.5), False)
sketch9.addGeometry(Part.Circle(App.Vector(-24.75, 182.288564, 0), App.Vector(0, 0, 1), 1.5), False)
sketch9.addGeometry(Part.Circle(App.Vector(0, 182.288564, 0), App.Vector(0, 0, 1), 1.5), False)
sketch9.addGeometry(Part.Circle(App.Vector(24.75, 182.288564, 0), App.Vector(0, 0, 1), 1.5), False)
sketch9.addConstraint(Sketcher.Constraint("Equal", 0, 1))
sketch9.addConstraint(Sketcher.Constraint("Equal", 1, 2))
sketch9.addConstraint(Sketcher.Constraint("Equal", 2, 3))
sketch9.addConstraint(Sketcher.Constraint("Equal", 3, 4))
sketch9.addConstraint(Sketcher.Constraint("Equal", 4, 5))
sketch9.addConstraint(Sketcher.Constraint("Symmetric", 0, 3, 2, 3, -2))
sketch9.addConstraint(Sketcher.Constraint("Symmetric", 3, 3, 5, 3, -2))
sketch9.addConstraint(Sketcher.Constraint("PointOnObject", 1, 3, -2))
sketch9.addConstraint(Sketcher.Constraint("PointOnObject", 4, 3, -2))
sketch9.addConstraint(Sketcher.Constraint("Horizontal", 0, 3, 1, 3))
sketch9.addConstraint(Sketcher.Constraint("Horizontal", 3, 3, 4, 3))
sketch9.addConstraint(Sketcher.Constraint("Vertical", 0, 3, 3, 3))
sketch9.addConstraint(Sketcher.Constraint("Diameter", 0, Q("3 mm")))
sketch9.addConstraint(Sketcher.Constraint("DistanceX", 0, 3, 2, 3, Q("49.5 mm")))
sketch9.addConstraint(Sketcher.Constraint("DistanceY", -1, 1, 0, 3, Q("28.351822 mm")))
sketch9.addConstraint(Sketcher.Constraint("DistanceY", -1, 1, 3, 3, Q("182.288564 mm")))
sketch9.setExpression("Constraints[12]", "Params.sketch9_diameter")
pocket8 = body.newObject("PartDesign::Pocket", "Pocket007")
pocket8.Profile = sketch9
pocket8.Type = "ThroughAll"
pocket8.Reversed = True

doc.recompute()
